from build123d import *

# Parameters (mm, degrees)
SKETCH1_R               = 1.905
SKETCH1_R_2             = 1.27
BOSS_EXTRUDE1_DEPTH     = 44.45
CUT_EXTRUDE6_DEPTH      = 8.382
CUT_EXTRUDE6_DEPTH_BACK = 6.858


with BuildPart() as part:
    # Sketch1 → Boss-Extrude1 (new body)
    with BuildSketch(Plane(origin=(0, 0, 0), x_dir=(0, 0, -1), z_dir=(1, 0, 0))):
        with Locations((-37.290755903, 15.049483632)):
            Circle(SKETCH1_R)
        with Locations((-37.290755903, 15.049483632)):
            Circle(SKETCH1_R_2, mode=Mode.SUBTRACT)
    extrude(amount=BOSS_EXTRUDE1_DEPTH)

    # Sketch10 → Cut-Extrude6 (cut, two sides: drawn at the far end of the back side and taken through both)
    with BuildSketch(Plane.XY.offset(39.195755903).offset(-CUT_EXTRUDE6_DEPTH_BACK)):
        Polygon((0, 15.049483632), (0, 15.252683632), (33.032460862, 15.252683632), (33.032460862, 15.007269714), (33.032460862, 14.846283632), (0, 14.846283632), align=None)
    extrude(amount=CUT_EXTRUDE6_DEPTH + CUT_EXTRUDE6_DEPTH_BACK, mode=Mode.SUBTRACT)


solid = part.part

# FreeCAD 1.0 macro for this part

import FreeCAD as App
import Part
import Sketcher
from FreeCAD import Vector
Q = App.Units.Quantity


def add_polygon(sketch, points):
    """Adds a closed chain of lines whose ends are joined by coincident constraints."""
    first, n = sketch.GeometryCount, len(points)
    for a, b in zip(points, points[1:] + points[:1]):
        sketch.addGeometry(Part.LineSegment(App.Vector(*a, 0), App.Vector(*b, 0)), False)
    for i in range(n):
        sketch.addConstraint(Sketcher.Constraint("Coincident", first + i, 2, first + (i + 1) % n, 1))

doc = App.newDocument("Part")
body = doc.addObject("PartDesign::Body", "Body")

sketch1 = body.newObject("Sketcher::SketchObject", "Sketch")
sketch1.AttachmentSupport = (doc.getObject("YZ_Plane"), [""])
sketch1.MapMode = "FlatFace"
sketch1.addGeometry([
    Part.Circle(Vector(15, 37.3, 0), Vector(0, 0, 1), 1.9),
    Part.Circle(Vector(15, 37.3, 0), Vector(0, 0, 1), 1.3),
], False)
sketch1.addConstraint([
    Sketcher.Constraint("Coincident", 1, 3, 0, 3),
    Sketcher.Constraint("Diameter", 1, Q("0.1 in")),
    Sketcher.Constraint("Diameter", 0, Q("0.15 in")),
    Sketcher.Constraint("DistanceX", -1, 1, 0, 3, 15.049484),
    Sketcher.Constraint("DistanceY", -1, 1, 0, 3, 37.290756),
])
pad1 = body.newObject("PartDesign::Pad", "Pad")
pad1.Profile = sketch1
pad1.Length = Q("1.75 in")

sketch2 = body.newObject("Sketcher::SketchObject", "Sketch001")
sketch2.AttachmentSupport = (doc.getObject("XY_Plane"), [""])
sketch2.MapMode = "FlatFace"
sketch2.AttachmentOffset = App.Placement(Vector(0, 0, 39.195756), App.Rotation())
add_polygon(sketch2, [(0, 15.25), (0, 14.85), (33.03, 14.85), (33.03, 15.25)])
sketch2.addConstraint([
    Sketcher.Constraint("Vertical", 0),
    Sketcher.Constraint("Horizontal", 1),
    Sketcher.Constraint("Vertical", 2),
    Sketcher.Constraint("Horizontal", 3),
    Sketcher.Constraint("PointOnObject", 0, 2, -2),
    Sketcher.Constraint("DistanceY", 0, 2, 0, 1, Q("0.016 in")),
    Sketcher.Constraint("DistanceX", 1, 1, 1, 2, 33.032461),
    Sketcher.Constraint("DistanceY", -1, 1, 0, 2, 14.846284),
])
pocket1 = body.newObject("PartDesign::Pocket", "Pocket")
pocket1.Profile = sketch2
pocket1.Type = "ThroughAll"
pocket1.Midplane = True

doc.recompute()
